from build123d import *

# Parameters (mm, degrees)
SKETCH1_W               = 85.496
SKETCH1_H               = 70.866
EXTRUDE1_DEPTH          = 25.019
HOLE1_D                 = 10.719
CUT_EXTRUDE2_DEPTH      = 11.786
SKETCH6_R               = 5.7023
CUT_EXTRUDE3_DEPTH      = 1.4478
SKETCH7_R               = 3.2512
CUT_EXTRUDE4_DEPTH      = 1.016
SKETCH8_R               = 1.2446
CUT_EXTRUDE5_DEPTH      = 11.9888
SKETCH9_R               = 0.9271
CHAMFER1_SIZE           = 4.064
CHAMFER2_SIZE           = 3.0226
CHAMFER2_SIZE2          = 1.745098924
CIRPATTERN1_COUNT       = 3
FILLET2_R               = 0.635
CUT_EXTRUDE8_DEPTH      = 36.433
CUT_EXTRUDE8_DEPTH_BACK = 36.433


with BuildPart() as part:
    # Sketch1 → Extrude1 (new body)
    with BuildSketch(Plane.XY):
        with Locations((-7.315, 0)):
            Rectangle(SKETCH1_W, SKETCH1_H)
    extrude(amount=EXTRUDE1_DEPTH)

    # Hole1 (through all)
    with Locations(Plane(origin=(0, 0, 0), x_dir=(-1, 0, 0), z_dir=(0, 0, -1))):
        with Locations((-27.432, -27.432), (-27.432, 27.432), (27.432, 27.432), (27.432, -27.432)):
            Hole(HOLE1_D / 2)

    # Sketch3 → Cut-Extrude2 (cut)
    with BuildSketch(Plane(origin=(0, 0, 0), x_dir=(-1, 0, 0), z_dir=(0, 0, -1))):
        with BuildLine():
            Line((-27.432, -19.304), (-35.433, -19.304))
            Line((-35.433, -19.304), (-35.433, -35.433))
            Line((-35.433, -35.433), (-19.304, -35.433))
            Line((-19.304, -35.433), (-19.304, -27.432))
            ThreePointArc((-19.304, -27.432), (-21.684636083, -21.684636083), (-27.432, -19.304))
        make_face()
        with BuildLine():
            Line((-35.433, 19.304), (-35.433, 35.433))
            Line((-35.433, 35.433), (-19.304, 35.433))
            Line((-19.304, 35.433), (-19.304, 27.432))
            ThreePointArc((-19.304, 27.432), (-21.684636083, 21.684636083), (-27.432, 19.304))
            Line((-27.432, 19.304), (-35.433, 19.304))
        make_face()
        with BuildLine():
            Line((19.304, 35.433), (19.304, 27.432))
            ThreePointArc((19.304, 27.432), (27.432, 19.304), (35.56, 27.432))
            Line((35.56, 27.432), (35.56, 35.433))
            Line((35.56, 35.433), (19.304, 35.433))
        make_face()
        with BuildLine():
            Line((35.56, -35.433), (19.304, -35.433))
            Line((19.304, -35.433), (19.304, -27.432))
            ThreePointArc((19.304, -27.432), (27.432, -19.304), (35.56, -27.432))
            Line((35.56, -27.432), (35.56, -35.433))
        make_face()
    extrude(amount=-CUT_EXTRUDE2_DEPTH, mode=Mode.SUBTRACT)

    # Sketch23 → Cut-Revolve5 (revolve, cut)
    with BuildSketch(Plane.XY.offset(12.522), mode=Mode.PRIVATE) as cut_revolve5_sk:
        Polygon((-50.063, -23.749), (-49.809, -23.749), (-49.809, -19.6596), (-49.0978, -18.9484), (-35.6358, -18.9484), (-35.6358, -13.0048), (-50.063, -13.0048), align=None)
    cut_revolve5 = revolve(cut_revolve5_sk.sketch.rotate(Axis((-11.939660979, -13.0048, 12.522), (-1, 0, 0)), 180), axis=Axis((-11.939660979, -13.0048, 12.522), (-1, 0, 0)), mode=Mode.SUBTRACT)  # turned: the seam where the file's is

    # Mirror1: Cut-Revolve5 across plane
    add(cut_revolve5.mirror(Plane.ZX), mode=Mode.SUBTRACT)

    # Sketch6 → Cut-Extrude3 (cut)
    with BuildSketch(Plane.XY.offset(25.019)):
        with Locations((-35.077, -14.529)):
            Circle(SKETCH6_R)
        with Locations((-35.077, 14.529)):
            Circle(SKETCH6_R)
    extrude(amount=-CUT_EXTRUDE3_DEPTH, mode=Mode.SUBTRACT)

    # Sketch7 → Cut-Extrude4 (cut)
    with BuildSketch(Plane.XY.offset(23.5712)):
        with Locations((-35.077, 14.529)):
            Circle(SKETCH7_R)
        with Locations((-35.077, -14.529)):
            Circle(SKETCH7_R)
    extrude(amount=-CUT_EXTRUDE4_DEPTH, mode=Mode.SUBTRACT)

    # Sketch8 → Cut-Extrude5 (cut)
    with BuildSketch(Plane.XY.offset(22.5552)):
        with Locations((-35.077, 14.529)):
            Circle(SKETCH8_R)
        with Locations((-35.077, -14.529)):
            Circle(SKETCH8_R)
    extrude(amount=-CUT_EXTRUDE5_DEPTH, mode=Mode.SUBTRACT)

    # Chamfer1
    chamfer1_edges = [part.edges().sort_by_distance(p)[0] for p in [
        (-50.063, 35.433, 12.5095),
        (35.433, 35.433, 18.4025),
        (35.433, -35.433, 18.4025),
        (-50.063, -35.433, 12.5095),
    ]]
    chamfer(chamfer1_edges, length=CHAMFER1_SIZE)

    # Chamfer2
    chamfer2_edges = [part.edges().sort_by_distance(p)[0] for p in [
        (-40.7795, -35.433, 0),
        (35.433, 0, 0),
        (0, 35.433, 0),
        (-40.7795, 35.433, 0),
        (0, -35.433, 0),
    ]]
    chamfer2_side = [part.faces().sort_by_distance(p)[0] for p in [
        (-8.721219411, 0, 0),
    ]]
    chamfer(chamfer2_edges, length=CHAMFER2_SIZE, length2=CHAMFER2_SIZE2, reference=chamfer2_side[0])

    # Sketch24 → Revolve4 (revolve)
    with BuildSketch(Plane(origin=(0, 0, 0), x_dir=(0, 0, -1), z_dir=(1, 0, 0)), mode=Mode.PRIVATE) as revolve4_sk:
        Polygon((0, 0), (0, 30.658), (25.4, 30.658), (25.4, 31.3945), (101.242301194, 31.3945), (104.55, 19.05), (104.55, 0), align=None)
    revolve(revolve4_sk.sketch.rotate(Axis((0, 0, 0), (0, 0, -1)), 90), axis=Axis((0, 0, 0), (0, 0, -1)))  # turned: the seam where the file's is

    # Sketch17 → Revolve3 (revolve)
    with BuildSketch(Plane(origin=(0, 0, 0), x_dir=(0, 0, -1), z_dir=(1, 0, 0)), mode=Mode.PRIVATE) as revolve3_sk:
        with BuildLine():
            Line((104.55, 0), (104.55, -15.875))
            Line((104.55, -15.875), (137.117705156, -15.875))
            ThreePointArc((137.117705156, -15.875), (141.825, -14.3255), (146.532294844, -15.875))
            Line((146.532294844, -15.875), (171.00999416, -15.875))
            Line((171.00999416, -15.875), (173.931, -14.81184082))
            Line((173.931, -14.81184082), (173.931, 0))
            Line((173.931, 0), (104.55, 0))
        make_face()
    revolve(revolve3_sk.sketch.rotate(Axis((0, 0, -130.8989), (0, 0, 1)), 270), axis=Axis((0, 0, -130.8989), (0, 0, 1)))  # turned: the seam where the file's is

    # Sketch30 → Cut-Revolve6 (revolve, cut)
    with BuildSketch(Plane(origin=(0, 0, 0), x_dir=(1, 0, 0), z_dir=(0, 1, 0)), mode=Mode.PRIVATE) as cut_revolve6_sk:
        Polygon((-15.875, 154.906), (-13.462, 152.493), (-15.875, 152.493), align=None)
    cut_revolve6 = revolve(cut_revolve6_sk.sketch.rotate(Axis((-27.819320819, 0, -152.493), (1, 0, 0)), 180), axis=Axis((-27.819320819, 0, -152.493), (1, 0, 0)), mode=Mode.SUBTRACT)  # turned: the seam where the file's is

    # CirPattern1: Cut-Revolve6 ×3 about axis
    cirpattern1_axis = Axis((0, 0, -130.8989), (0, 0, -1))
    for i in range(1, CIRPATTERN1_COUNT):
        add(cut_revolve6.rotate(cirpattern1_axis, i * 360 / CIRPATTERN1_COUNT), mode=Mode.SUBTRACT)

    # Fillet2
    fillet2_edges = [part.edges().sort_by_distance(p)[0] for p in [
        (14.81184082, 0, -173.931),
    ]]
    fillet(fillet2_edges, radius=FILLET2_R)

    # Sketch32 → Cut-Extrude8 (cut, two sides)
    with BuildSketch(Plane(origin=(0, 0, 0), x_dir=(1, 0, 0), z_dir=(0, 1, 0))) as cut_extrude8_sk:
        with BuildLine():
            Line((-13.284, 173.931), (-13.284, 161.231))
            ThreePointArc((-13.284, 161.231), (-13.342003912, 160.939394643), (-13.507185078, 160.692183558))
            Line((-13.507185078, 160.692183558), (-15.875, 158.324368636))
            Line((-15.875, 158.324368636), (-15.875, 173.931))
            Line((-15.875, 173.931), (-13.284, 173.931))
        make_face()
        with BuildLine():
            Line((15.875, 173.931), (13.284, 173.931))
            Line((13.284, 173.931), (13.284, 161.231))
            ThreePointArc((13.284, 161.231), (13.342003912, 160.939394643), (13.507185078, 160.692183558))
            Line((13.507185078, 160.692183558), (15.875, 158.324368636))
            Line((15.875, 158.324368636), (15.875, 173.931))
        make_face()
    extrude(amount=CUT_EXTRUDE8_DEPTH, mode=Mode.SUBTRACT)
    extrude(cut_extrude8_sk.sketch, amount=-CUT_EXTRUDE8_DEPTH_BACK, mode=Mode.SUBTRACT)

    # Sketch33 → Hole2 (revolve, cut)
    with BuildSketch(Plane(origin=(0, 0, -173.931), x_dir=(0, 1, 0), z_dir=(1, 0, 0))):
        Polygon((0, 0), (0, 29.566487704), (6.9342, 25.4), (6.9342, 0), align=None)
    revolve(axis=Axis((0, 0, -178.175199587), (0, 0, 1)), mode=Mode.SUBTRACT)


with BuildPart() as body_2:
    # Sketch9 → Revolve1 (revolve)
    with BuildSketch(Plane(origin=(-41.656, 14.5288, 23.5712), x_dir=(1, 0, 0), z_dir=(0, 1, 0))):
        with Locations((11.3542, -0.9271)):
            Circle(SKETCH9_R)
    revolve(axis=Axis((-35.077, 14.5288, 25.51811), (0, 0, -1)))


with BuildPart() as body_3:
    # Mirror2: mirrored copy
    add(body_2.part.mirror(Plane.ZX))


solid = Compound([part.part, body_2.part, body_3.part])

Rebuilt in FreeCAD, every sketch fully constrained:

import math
import FreeCAD as App
import Part
import Sketcher

V = App.Vector
Q = App.Units.Quantity


def edges_at(feature, points):
    """Names of the edges that pass closest to the given points."""
    edges = feature.Shape.Edges
    near = lambda p: min(range(len(edges)), key=lambda i: edges[i].distToShape(Part.Vertex(*p))[0])
    return sorted({f"Edge{near(p) + 1}" for p in points})


def add_polygon(sketch, points):
    """Adds a closed chain of lines whose ends are joined by coincident constraints."""
    first, n = sketch.GeometryCount, len(points)
    for a, b in zip(points, points[1:] + points[:1]):
        sketch.addGeometry(Part.LineSegment(App.Vector(*a, 0), App.Vector(*b, 0)), False)
    for i in range(n):
        sketch.addConstraint(Sketcher.Constraint("Coincident", first + i, 2, first + (i + 1) % n, 1))

doc = App.newDocument("Part")
body = doc.addObject("PartDesign::Body", "Body")

# Sketch on XY plane
sketch1 = body.newObject("Sketcher::SketchObject", "Sketch")
sketch1.AttachmentSupport = (doc.getObject("XY_Plane"), [""])
sketch1.MapMode = "FlatFace"
add_polygon(sketch1, [(-50.063, 35.433), (-50.063, -35.433), (35.433, -35.433), (35.433, 35.433)])  # lines 0-3
sketch1.addConstraint([
    Sketcher.Constraint("Vertical", 0),
    Sketcher.Constraint("Horizontal", 1),
    Sketcher.Constraint("Vertical", 2),
    Sketcher.Constraint("Horizontal", 3),
    Sketcher.Constraint("DistanceY", 0, 2, 0, 1, Q("2.79 in")),
    Sketcher.Constraint("DistanceY", 0, 2, -1, 1, Q("1.395 in")),
    Sketcher.Constraint("DistanceX", -1, 1, 1, 2, Q("1.395 in")),
    Sketcher.Constraint("DistanceX", 1, 1, 1, 2, Q("85.496 mm")),
])
pad1 = body.newObject("PartDesign::Pad", "Pad")
pad1.Profile = sketch1
pad1.Length = Q("0.985 in")

# Sketch on XY plane
sketch2 = body.newObject("Sketcher::SketchObject", "Sketch001")
sketch2.AttachmentSupport = (doc.getObject("XY_Plane"), [""])
sketch2.MapMode = "FlatFace"
sketch2.addGeometry([
    Part.Circle(V(27.432, -27.432, 0), V(0, 0, 1), 5.3595),
    Part.Circle(V(27.432, 27.432, 0), V(0, 0, 1), 5.3595),
    Part.Circle(V(-27.432, 27.432, 0), V(0, 0, 1), 5.3595),
    Part.Circle(V(-27.432, -27.432, 0), V(0, 0, 1), 5.3595),
], False)
sketch2.addConstraint([
    Sketcher.Constraint("Equal", 0, 1),
    Sketcher.Constraint("Equal", 1, 2),
    Sketcher.Constraint("Equal", 2, 3),
    Sketcher.Constraint("Symmetric", 0, 3, 2, 3, -1, 1),
    Sketcher.Constraint("Symmetric", 1, 3, 3, 3, -1, 1),
    Sketcher.Constraint("Symmetric", 1, 3, 2, 3, -2),
    Sketcher.Constraint("Diameter", 0, Q("10.719 mm")),
    Sketcher.Constraint("DistanceX", -1, 1, 0, 3, Q("1.08 in")),
    Sketcher.Constraint("DistanceY", 0, 3, -1, 1, Q("1.08 in")),
])
doc.recompute()
hole = body.newObject("PartDesign::Hole", "Hole")
hole.Profile = sketch2
hole.ThreadType = "None"
hole.Diameter = 10.719
hole.DepthType = "ThroughAll"
hole.Reversed = True

# Sketch on XY plane
sketch3 = body.newObject("Sketcher::SketchObject", "Sketch002")
sketch3.AttachmentSupport = (doc.getObject("XY_Plane"), [""])
sketch3.MapMode = "FlatFace"
sketch3.addGeometry([
    Part.LineSegment(V(27.432, -19.304, 0), V(35.433, -19.304, 0)),  # 0
    Part.LineSegment(V(35.433, -19.304, 0), V(35.433, -35.433, 0)),  # 1
    Part.LineSegment(V(35.433, -35.433, 0), V(19.304, -35.433, 0)),  # 2
    Part.LineSegment(V(19.304, -35.433, 0), V(19.304, -27.432, 0)),  # 3
    Part.ArcOfCircle(Part.Circle(V(27.432, -27.432, 0), V(0, 0, 1), 8.128), math.radians(90), math.radians(180)),  # 4
    Part.LineSegment(V(35.433, 35.433, 0), V(35.433, 19.304, 0)),  # 5
    Part.LineSegment(V(35.433, 19.304, 0), V(27.432, 19.304, 0)),  # 6
    Part.ArcOfCircle(Part.Circle(V(27.432, 27.432, 0), V(0, 0, 1), 8.128), math.radians(-180), math.radians(-90)),  # 7
    Part.LineSegment(V(19.304, 27.432, 0), V(19.304, 35.433, 0)),  # 8
    Part.LineSegment(V(19.304, 35.433, 0), V(35.433, 35.433, 0)),  # 9
    Part.LineSegment(V(-19.304, 35.433, 0), V(-19.304, 27.432, 0)),  # 10
    Part.ArcOfCircle(Part.Circle(V(-27.432, 27.432, 0), V(0, 0, 1), 8.128), math.radians(180), math.radians(360)),  # 11
    Part.LineSegment(V(-35.56, 27.432, 0), V(-35.56, 35.433, 0)),  # 12
    Part.LineSegment(V(-35.56, 35.433, 0), V(-19.304, 35.433, 0)),  # 13
    Part.LineSegment(V(-19.304, -35.433, 0), V(-35.56, -35.433, 0)),  # 14
    Part.LineSegment(V(-35.56, -35.433, 0), V(-35.56, -27.432, 0)),  # 15
    Part.ArcOfCircle(Part.Circle(V(-27.432, -27.432, 0), V(0, 0, 1), 8.128), math.radians(0), math.radians(180)),  # 16
    Part.LineSegment(V(-19.304, -27.432, 0), V(-19.304, -35.433, 0)),  # 17
], False)
sketch3.addConstraint([
    Sketcher.Constraint("Coincident", 0, 2, 1, 1),
    Sketcher.Constraint("Coincident", 1, 2, 2, 1),
    Sketcher.Constraint("Coincident", 2, 2, 3, 1),
    Sketcher.Constraint("Tangent", 3, 2, 4, 2),
    Sketcher.Constraint("Tangent", 4, 1, 0, 1),
    Sketcher.Constraint("Coincident", 5, 2, 6, 1),
    Sketcher.Constraint("Tangent", 6, 2, 7, 2),
    Sketcher.Constraint("Tangent", 7, 1, 8, 1),
    Sketcher.Constraint("Coincident", 8, 2, 9, 1),
    Sketcher.Constraint("Coincident", 9, 2, 5, 1),
    Sketcher.Constraint("Tangent", 10, 2, 11, 2),
    Sketcher.Constraint("Tangent", 11, 1, 12, 1),
    Sketcher.Constraint("Coincident", 12, 2, 13, 1),
    Sketcher.Constraint("Coincident", 13, 2, 10, 1),
    Sketcher.Constraint("Coincident", 14, 2, 15, 1),
    Sketcher.Constraint("Tangent", 15, 2, 16, 2),
    Sketcher.Constraint("Tangent", 16, 1, 17, 1),
    Sketcher.Constraint("Coincident", 17, 2, 14, 1),
    Sketcher.Constraint("Horizontal", 0),
    Sketcher.Constraint("Vertical", 1),
    Sketcher.Constraint("Horizontal", 2),
    Sketcher.Constraint("Vertical", 3),
    Sketcher.Constraint("Vertical", 5),
    Sketcher.Constraint("Horizontal", 6),
    Sketcher.Constraint("Vertical", 8),
    Sketcher.Constraint("Horizontal", 9),
    Sketcher.Constraint("Vertical", 10),
    Sketcher.Constraint("Vertical", 12),
    Sketcher.Constraint("Horizontal", 13),
    Sketcher.Constraint("Horizontal", 14),
    Sketcher.Constraint("Vertical", 15),
    Sketcher.Constraint("Vertical", 17),
    Sketcher.Constraint("Equal", 4, 7),
    Sketcher.Constraint("Equal", 7, 11),
    Sketcher.Constraint("Equal", 11, 16),
    Sketcher.Constraint("Symmetric", 4, 3, 11, 3, -1, 1),
    Sketcher.Constraint("Symmetric", 7, 3, 16, 3, -1, 1),
    Sketcher.Constraint("Symmetric", 7, 3, 11, 3, -2),
    Sketcher.Constraint("Symmetric", 1, 2, 9, 2, -1),
    Sketcher.Constraint("Horizontal", 9, 2, 12, 2),
    Sketcher.Constraint("Horizontal", 2, 2, 14, 2),
    Sketcher.Constraint("Equal", 9, 1),
    Sketcher.Constraint("Radius", 4, Q("0.32 in")),
    Sketcher.Constraint("DistanceX", 11, 1, -1, 1, Q("1.4 in")),
    Sketcher.Constraint("DistanceX", 0, 1, 0, 2, Q("0.315 in")),
    Sketcher.Constraint("DistanceY", 4, 3, -1, 1, Q("1.08 in")),
])
pocket1 = body.newObject("PartDesign::Pocket", "Pocket")
pocket1.Profile = sketch3
pocket1.Length = 11.786
pocket1.Reversed = True

# Sketch on XY plane
sketch4 = body.newObject("Sketcher::SketchObject", "Sketch003")
sketch4.AttachmentSupport = (doc.getObject("XY_Plane"), [""])
sketch4.MapMode = "FlatFace"
sketch4.AttachmentOffset = App.Placement(V(0, 0, 12.522), App.Rotation())
add_polygon(sketch4, [(-50.063, -23.749), (-49.809, -23.749), (-49.809, -19.6596), (-49.0978, -18.9484), (-35.6358, -18.9484), (-35.6358, -13.0048), (-50.063, -13.0048)])  # lines 0-6
sketch4.addGeometry(Part.LineSegment(V(-35.6358, -13.0048, 0), V(-50.063, -13.0048, 0)), True)  # axis
sketch4.addConstraint([
    Sketcher.Constraint("Horizontal", 0),
    Sketcher.Constraint("Vertical", 1),
    Sketcher.Constraint("Horizontal", 3),
    Sketcher.Constraint("Vertical", 4),
    Sketcher.Constraint("Horizontal", 5),
    Sketcher.Constraint("Vertical", 6),
    Sketcher.Constraint("Horizontal", 7),
    Sketcher.Constraint("Coincident", 7, 1, 4, 2),
    Sketcher.Constraint("Vertical", 6, 2, 7, 2),
    Sketcher.Constraint("Angle", 2, Q("45 deg")),
    Sketcher.Constraint("DistanceX", 0, 1, 0, 2, Q("0.01 in")),
    Sketcher.Constraint("DistanceX", 3, 1, 3, 2, Q("0.53 in")),
    Sketcher.Constraint("DistanceX", 5, 2, 5, 1, Q("0.568 in")),
    Sketcher.Constraint("DistanceY", 1, 1, 1, 2, Q("0.161 in")),
    Sketcher.Constraint("DistanceY", 4, 1, 4, 2, Q("0.234 in")),
    Sketcher.Constraint("DistanceY", 0, 2, -1, 1, Q("0.935 in")),
    Sketcher.Constraint("DistanceX", 0, 2, -1, 1, Q("49.809 mm")),
])
groove = body.newObject("PartDesign::Groove", "Groove")
groove.Profile = sketch4
groove.ReferenceAxis = (sketch4, ["Axis0"])
groove.Angle = 360
doc.recompute()

mirrored = body.newObject("PartDesign::Mirrored", "Mirrored")
mirrored.Originals = [groove]
mirrored.MirrorPlane = (doc.getObject("XZ_Plane"), [""])
body.Tip = mirrored

# Sketch on XY plane
sketch5 = body.newObject("Sketcher::SketchObject", "Sketch004")
sketch5.AttachmentSupport = (doc.getObject("XY_Plane"), [""])
sketch5.MapMode = "FlatFace"
sketch5.AttachmentOffset = App.Placement(V(0, 0, 0.985 * 25.4), App.Rotation())
sketch5.addGeometry([
    Part.Circle(V(-35.077, -14.529, 0), V(0, 0, 1), 5.7023),
    Part.Circle(V(-35.077, 14.529, 0), V(0, 0, 1), 5.7023),
], False)
sketch5.addConstraint([
    Sketcher.Constraint("Equal", 0, 1),
    Sketcher.Constraint("Symmetric", 0, 3, 1, 3, -1),
    Sketcher.Constraint("Diameter", 0, Q("0.449 in")),
    Sketcher.Constraint("DistanceX", 0, 3, -1, 1, Q("35.077 mm")),
    Sketcher.Constraint("DistanceY", 0, 3, -1, 1, Q("14.529 mm")),
])
pocket2 = body.newObject("PartDesign::Pocket", "Pocket001")
pocket2.Profile = sketch5
pocket2.Length = Q("0.057 in")

# Sketch on XY plane
sketch6 = body.newObject("Sketcher::SketchObject", "Sketch005")
sketch6.AttachmentSupport = (doc.getObject("XY_Plane"), [""])
sketch6.MapMode = "FlatFace"
sketch6.AttachmentOffset = App.Placement(V(0, 0, 0.928 * 25.4), App.Rotation())
sketch6.addGeometry([
    Part.Circle(V(-35.077, 14.529, 0), V(0, 0, 1), 3.2512),
    Part.Circle(V(-35.077, -14.529, 0), V(0, 0, 1), 3.2512),
], False)
sketch6.addConstraint([
    Sketcher.Constraint("Equal", 0, 1),
    Sketcher.Constraint("Symmetric", 0, 3, 1, 3, -1),
    Sketcher.Constraint("Diameter", 0, Q("0.256 in")),
    Sketcher.Constraint("DistanceX", 0, 3, -1, 1, Q("35.077 mm")),
    Sketcher.Constraint("DistanceY", -1, 1, 0, 3, Q("14.529 mm")),
])
pocket3 = body.newObject("PartDesign::Pocket", "Pocket002")
pocket3.Profile = sketch6
pocket3.Length = Q("0.04 in")

# Sketch on XY plane
sketch7 = body.newObject("Sketcher::SketchObject", "Sketch006")
sketch7.AttachmentSupport = (doc.getObject("XY_Plane"), [""])
sketch7.MapMode = "FlatFace"
sketch7.AttachmentOffset = App.Placement(V(0, 0, 0.888 * 25.4), App.Rotation())
sketch7.addGeometry([
    Part.Circle(V(-35.077, 14.529, 0), V(0, 0, 1), 1.2446),
    Part.Circle(V(-35.077, -14.529, 0), V(0, 0, 1), 1.2446),
], False)
sketch7.addConstraint([
    Sketcher.Constraint("Equal", 0, 1),
    Sketcher.Constraint("Symmetric", 0, 3, 1, 3, -1),
    Sketcher.Constraint("Diameter", 0, Q("0.098 in")),
    Sketcher.Constraint("DistanceX", 0, 3, -1, 1, Q("35.077 mm")),
    Sketcher.Constraint("DistanceY", -1, 1, 0, 3, Q("14.529 mm")),
])
pocket4 = body.newObject("PartDesign::Pocket", "Pocket003")
pocket4.Profile = sketch7
pocket4.Length = Q("0.472 in")
doc.recompute()

chamfer = body.newObject("PartDesign::Chamfer", "Chamfer")
chamfer.Base = (pocket4, edges_at(pocket4, [
    (-50.063, 35.433, 12.509),
    (35.433, 35.433, 18.402),
    (35.433, -35.433, 18.402),
    (-50.063, -35.433, 12.509),
]))
chamfer.Size = Q("0.16 in")
doc.recompute()

chamfer2 = body.newObject("PartDesign::Chamfer", "Chamfer001")
chamfer2.Base = (chamfer, edges_at(chamfer, [
    (-40.779, -35.433, 0),
    (35.433, 0, 0),
    (0, 35.433, 0),
    (-40.779, 35.433, 0),
    (0, -35.433, 0),
]))
chamfer2.ChamferType = "Two distances"
chamfer2.Size = Q("0.119 in")
chamfer2.Size2 = 1.745099

# Sketch on YZ plane
sketch8 = body.newObject("Sketcher::SketchObject", "Sketch007")
sketch8.AttachmentSupport = (doc.getObject("YZ_Plane"), [""])
sketch8.MapMode = "FlatFace"
add_polygon(sketch8, [(30.658, 0), (0, 0), (0, -104.55), (19.05, -104.55), (31.3945, -101.242301), (31.3945, -25.4), (30.658, -25.4)])  # lines 0-6
sketch8.addConstraint([
    Sketcher.Constraint("Horizontal", 0),
    Sketcher.Constraint("Vertical", 1),
    Sketcher.Constraint("Horizontal", 2),
    Sketcher.Constraint("Vertical", 4),
    Sketcher.Constraint("Horizontal", 5),
    Sketcher.Constraint("Vertical", 6),
    Sketcher.Constraint("Coincident", 0, 2, -1, 1),
    Sketcher.Constraint("DistanceY", 6, 1, 6, 2, Q("1 in")),
    Sketcher.Constraint("Angle", 3, Q("15 deg")),
    Sketcher.Constraint("DistanceX", 2, 1, 2, 2, Q("0.75 in")),
    Sketcher.Constraint("DistanceX", 0, 2, 0, 1, Q("30.658 mm")),
    Sketcher.Constraint("DistanceX", 5, 2, 5, 1, Q("0.7365 mm")),
    Sketcher.Constraint("DistanceY", 1, 2, 1, 1, Q("104.55 mm")),
])
revolution = body.newObject("PartDesign::Revolution", "Revolution")
revolution.Profile = sketch8
revolution.ReferenceAxis = (sketch8, ["V_Axis"])
revolution.Angle = 360

# Sketch on YZ plane
sketch9 = body.newObject("Sketcher::SketchObject", "Sketch008")
sketch9.AttachmentSupport = (doc.getObject("YZ_Plane"), [""])
sketch9.MapMode = "FlatFace"
sketch9.addGeometry([
    Part.LineSegment(V(0, -104.55, 0), V(-15.875, -104.55, 0)),  # 0
    Part.LineSegment(V(-15.875, -104.55, 0), V(-15.875, -137.117705, 0)),  # 1
    Part.ArcOfCircle(Part.Circle(V(-22.2505, -141.825, 0), V(0, 0, 1), 7.925), math.radians(-36.439983), math.radians(36.439983)),  # 2
    Part.LineSegment(V(-15.875, -146.532295, 0), V(-15.875, -171.009994, 0)),  # 3
    Part.LineSegment(V(-15.875, -171.009994, 0), V(-14.811841, -173.931, 0)),  # 4
    Part.LineSegment(V(-14.811841, -173.931, 0), V(0, -173.931, 0)),  # 5
    Part.LineSegment(V(0, -173.931, 0), V(0, -104.55, 0)),  # 6
], False)
sketch9.addConstraint([
    Sketcher.Constraint("Coincident", 0, 2, 1, 1),
    Sketcher.Constraint("Coincident", 1, 2, 2, 2),
    Sketcher.Constraint("Coincident", 2, 1, 3, 1),
    Sketcher.Constraint("Coincident", 3, 2, 4, 1),
    Sketcher.Constraint("Coincident", 4, 2, 5, 1),
    Sketcher.Constraint("Coincident", 5, 2, 6, 1),
    Sketcher.Constraint("Coincident", 6, 2, 0, 1),
    Sketcher.Constraint("Horizontal", 0),
    Sketcher.Constraint("Vertical", 1),
    Sketcher.Constraint("Vertical", 3),
    Sketcher.Constraint("Horizontal", 5),
    Sketcher.Constraint("Vertical", 6),
    Sketcher.Constraint("PointOnObject", 5, 2, -2),
    Sketcher.Constraint("Vertical", 1, 2, 2, 1),
    Sketcher.Constraint("Angle", 4, Q("-70 deg")),
    Sketcher.Constraint("DistanceX", 0, 2, 0, 1, Q("0.625 in")),
    Sketcher.Constraint("Radius", 2, Q("7.925 mm")),
    Sketcher.Constraint("DistanceY", 3, 2, 3, 1, Q("24.477699 mm")),
    Sketcher.Constraint("DistanceY", 6, 1, 6, 2, Q("69.381 mm")),
    Sketcher.Constraint("DistanceX", 5, 1, 5, 2, Q("14.811841 mm")),
    Sketcher.Constraint("DistanceX", 2, 3, -1, 1, Q("22.2505 mm")),
    Sketcher.Constraint("DistanceY", 2, 3, -1, 1, Q("141.825 mm")),
])
revolution2 = body.newObject("PartDesign::Revolution", "Revolution001")
revolution2.Profile = sketch9
revolution2.ReferenceAxis = (sketch9, ["V_Axis"])
revolution2.Angle = 360

# Sketch on XZ plane
sketch10 = body.newObject("Sketcher::SketchObject", "Sketch009")
sketch10.AttachmentSupport = (doc.getObject("XZ_Plane"), [""])
sketch10.MapMode = "FlatFace"
add_polygon(sketch10, [(-13.462, -152.493), (-15.875, -154.906), (-15.875, -152.493)])  # lines 0-2
sketch10.addGeometry(Part.LineSegment(V(-15.875, -152.493, 0), V(-13.462, -152.493, 0)), True)  # axis
sketch10.addConstraint([
    Sketcher.Constraint("Vertical", 1),
    Sketcher.Constraint("Horizontal", 2),
    Sketcher.Constraint("Horizontal", 3),
    Sketcher.Constraint("Coincident", 3, 1, 1, 2),
    Sketcher.Constraint("Equal", 2, 3),
    Sketcher.Constraint("Equal", 3, 1),
    Sketcher.Constraint("DistanceX", 2, 1, 2, 2, Q("0.095 in")),
    Sketcher.Constraint("DistanceX", 2, 2, -1, 1, Q("0.53 in")),
    Sketcher.Constraint("DistanceY", 0, 2, -1, 1, Q("154.906 mm")),
])
groove2 = body.newObject("PartDesign::Groove", "Groove001")
groove2.Profile = sketch10
groove2.ReferenceAxis = (sketch10, ["Axis0"])
groove2.Angle = 360
doc.recompute()

polarpattern = body.newObject("PartDesign::PolarPattern", "PolarPattern")
polarpattern.Originals = [groove2]
polarpattern.Axis = (doc.getObject("Z_Axis"), [""])
polarpattern.Angle = 360
polarpattern.Occurrences = 3
body.Tip = polarpattern
doc.recompute()

fillet = body.newObject("PartDesign::Fillet", "Fillet")
fillet.Base = (polarpattern, edges_at(polarpattern, [(14.812, 0, -173.931)]))
fillet.Radius = Q("0.025 in")

# Sketch on XZ plane
sketch11 = body.newObject("Sketcher::SketchObject", "Sketch010")
sketch11.AttachmentSupport = (doc.getObject("XZ_Plane"), [""])
sketch11.MapMode = "FlatFace"
sketch11.addGeometry([
    Part.LineSegment(V(-13.284, -161.231, 0), V(-13.284, -173.931, 0)),  # 0
    Part.LineSegment(V(-13.284, -173.931, 0), V(-15.875, -173.931, 0)),  # 1
    Part.LineSegment(V(-15.875, -173.931, 0), V(-15.875, -158.324369, 0)),  # 2
    Part.LineSegment(V(-15.875, -158.324369, 0), V(-13.507185, -160.692184, 0)),  # 3
    Part.ArcOfCircle(Part.Circle(V(-14.046002, -161.231, 0), V(0, 0, 1), 0.762002), math.radians(0), math.radians(45)),  # 4
    Part.LineSegment(V(15.875, -173.931, 0), V(13.284, -173.931, 0)),  # 5
    Part.LineSegment(V(13.284, -173.931, 0), V(13.284, -161.231, 0)),  # 6
    Part.ArcOfCircle(Part.Circle(V(14.046002, -161.231, 0), V(0, 0, 1), 0.762002), math.radians(135), math.radians(180)),  # 7
    Part.LineSegment(V(13.507185, -160.692184, 0), V(15.875, -158.324369, 0)),  # 8
    Part.LineSegment(V(15.875, -158.324369, 0), V(15.875, -173.931, 0)),  # 9
], False)
sketch11.addConstraint([
    Sketcher.Constraint("Coincident", 0, 2, 1, 1),
    Sketcher.Constraint("Coincident", 1, 2, 2, 1),
    Sketcher.Constraint("Coincident", 2, 2, 3, 1),
    Sketcher.Constraint("Tangent", 3, 2, 4, 2),
    Sketcher.Constraint("Tangent", 4, 1, 0, 1),
    Sketcher.Constraint("Coincident", 5, 2, 6, 1),
    Sketcher.Constraint("Tangent", 6, 2, 7, 2),
    Sketcher.Constraint("Tangent", 7, 1, 8, 1),
    Sketcher.Constraint("Coincident", 8, 2, 9, 1),
    Sketcher.Constraint("Coincident", 9, 2, 5, 1),
    Sketcher.Constraint("Vertical", 0),
    Sketcher.Constraint("Horizontal", 1),
    Sketcher.Constraint("Vertical", 2),
    Sketcher.Constraint("Horizontal", 5),
    Sketcher.Constraint("Vertical", 6),
    Sketcher.Constraint("Vertical", 9),
    Sketcher.Constraint("Equal", 4, 7),
    Sketcher.Constraint("Symmetric", 4, 3, 7, 3, -2),
    Sketcher.Constraint("Symmetric", 2, 2, 8, 2, -2),
    Sketcher.Constraint("Perpendicular", 3, 8),
    Sketcher.Constraint("Horizontal", 1, 2, 5, 2),
    Sketcher.Constraint("Radius", 4, Q("0.0300001 in")),
    Sketcher.Constraint("DistanceY", 0, 2, 0, 1, Q("0.5 in")),
    Sketcher.Constraint("DistanceX", 1, 2, -1, 1, Q("0.625 in")),
    Sketcher.Constraint("DistanceX", 1, 2, 1, 1, Q("2.591 mm")),
    Sketcher.Constraint("DistanceY", 4, 3, -1, 1, Q("161.231 mm")),
])
pocket5 = body.newObject("PartDesign::Pocket", "Pocket004")
pocket5.Profile = sketch11
pocket5.Type = "ThroughAll"
pocket5.Midplane = True

# Sketch on YZ plane
sketch12 = body.newObject("Sketcher::SketchObject", "Sketch011")
sketch12.AttachmentSupport = (doc.getObject("YZ_Plane"), [""])
sketch12.MapMode = "FlatFace"
add_polygon(sketch12, [(0, -144.364512), (0, -173.931), (6.9342, -173.931), (6.9342, -148.531)])  # lines 0-3
sketch12.addConstraint([
    Sketcher.Constraint("Vertical", 0),
    Sketcher.Constraint("Horizontal", 1),
    Sketcher.Constraint("Vertical", 2),
    Sketcher.Constraint("PointOnObject", 0, 2, -2),
    Sketcher.Constraint("DistanceY", 2, 1, 2, 2, Q("1 in")),
    Sketcher.Constraint("Angle", 3, Q("149 deg")),
    Sketcher.Constraint("DistanceX", 1, 1, 1, 2, Q("0.273 in")),
    Sketcher.Constraint("DistanceY", 0, 2, -1, 1, Q("173.931 mm")),
])
groove3 = body.newObject("PartDesign::Groove", "Groove002")
groove3.Profile = sketch12
groove3.ReferenceAxis = (sketch12, ["V_Axis"])
groove3.Angle = 360
body2 = doc.addObject("PartDesign::Body", "Body001")

# Sketch on XZ plane
sketch13 = body2.newObject("Sketcher::SketchObject", "Sketch012")
sketch13.AttachmentSupport = (doc.getObject("XZ_Plane001"), [""])
sketch13.MapMode = "FlatFace"
sketch13.AttachmentOffset = App.Placement(V(0, 0, -0.572 * 25.4), App.Rotation())
sketch13.addGeometry(Part.Circle(V(-30.3018, 24.4983, 0), V(0, 0, 1), 0.9271), False)
sketch13.addGeometry(Part.LineSegment(V(-35.077, 24.4983, 0), V(-35.077, 14.4983, 0)), True)  # axis
sketch13.addConstraint([
    Sketcher.Constraint("Vertical", 1),
    Sketcher.Constraint("Horizontal", 0, 3, 1, 1),
    Sketcher.Constraint("Diameter", 0, Q("0.073 in")),
    Sketcher.Constraint("DistanceX", 1, 1, 0, 3, Q("0.188 in")),
    Sketcher.Constraint("DistanceY", 1, 2, 1, 1, Q("10 mm")),
    Sketcher.Constraint("DistanceY", -1, 1, 0, 3, Q("0.9645 in")),
    Sketcher.Constraint("DistanceX", 0, 3, -1, 1, Q("30.3018 mm")),
])
revolution3 = body2.newObject("PartDesign::Revolution", "Revolution002")
revolution3.Profile = sketch13
revolution3.ReferenceAxis = (sketch13, ["Axis0"])
revolution3.Angle = 360
body3 = doc.addObject("PartDesign::Body", "Body002")
doc.recompute()

mirroring = doc.addObject("Part::Mirroring", "Mirroring")
mirroring.Source = body2
mirroring.Base = V(0, 0, 0)
mirroring.Normal = V(0, 1, 0)
body3.BaseFeature = mirroring
doc.recompute()
mirroring.Visibility = False

doc.recompute()
